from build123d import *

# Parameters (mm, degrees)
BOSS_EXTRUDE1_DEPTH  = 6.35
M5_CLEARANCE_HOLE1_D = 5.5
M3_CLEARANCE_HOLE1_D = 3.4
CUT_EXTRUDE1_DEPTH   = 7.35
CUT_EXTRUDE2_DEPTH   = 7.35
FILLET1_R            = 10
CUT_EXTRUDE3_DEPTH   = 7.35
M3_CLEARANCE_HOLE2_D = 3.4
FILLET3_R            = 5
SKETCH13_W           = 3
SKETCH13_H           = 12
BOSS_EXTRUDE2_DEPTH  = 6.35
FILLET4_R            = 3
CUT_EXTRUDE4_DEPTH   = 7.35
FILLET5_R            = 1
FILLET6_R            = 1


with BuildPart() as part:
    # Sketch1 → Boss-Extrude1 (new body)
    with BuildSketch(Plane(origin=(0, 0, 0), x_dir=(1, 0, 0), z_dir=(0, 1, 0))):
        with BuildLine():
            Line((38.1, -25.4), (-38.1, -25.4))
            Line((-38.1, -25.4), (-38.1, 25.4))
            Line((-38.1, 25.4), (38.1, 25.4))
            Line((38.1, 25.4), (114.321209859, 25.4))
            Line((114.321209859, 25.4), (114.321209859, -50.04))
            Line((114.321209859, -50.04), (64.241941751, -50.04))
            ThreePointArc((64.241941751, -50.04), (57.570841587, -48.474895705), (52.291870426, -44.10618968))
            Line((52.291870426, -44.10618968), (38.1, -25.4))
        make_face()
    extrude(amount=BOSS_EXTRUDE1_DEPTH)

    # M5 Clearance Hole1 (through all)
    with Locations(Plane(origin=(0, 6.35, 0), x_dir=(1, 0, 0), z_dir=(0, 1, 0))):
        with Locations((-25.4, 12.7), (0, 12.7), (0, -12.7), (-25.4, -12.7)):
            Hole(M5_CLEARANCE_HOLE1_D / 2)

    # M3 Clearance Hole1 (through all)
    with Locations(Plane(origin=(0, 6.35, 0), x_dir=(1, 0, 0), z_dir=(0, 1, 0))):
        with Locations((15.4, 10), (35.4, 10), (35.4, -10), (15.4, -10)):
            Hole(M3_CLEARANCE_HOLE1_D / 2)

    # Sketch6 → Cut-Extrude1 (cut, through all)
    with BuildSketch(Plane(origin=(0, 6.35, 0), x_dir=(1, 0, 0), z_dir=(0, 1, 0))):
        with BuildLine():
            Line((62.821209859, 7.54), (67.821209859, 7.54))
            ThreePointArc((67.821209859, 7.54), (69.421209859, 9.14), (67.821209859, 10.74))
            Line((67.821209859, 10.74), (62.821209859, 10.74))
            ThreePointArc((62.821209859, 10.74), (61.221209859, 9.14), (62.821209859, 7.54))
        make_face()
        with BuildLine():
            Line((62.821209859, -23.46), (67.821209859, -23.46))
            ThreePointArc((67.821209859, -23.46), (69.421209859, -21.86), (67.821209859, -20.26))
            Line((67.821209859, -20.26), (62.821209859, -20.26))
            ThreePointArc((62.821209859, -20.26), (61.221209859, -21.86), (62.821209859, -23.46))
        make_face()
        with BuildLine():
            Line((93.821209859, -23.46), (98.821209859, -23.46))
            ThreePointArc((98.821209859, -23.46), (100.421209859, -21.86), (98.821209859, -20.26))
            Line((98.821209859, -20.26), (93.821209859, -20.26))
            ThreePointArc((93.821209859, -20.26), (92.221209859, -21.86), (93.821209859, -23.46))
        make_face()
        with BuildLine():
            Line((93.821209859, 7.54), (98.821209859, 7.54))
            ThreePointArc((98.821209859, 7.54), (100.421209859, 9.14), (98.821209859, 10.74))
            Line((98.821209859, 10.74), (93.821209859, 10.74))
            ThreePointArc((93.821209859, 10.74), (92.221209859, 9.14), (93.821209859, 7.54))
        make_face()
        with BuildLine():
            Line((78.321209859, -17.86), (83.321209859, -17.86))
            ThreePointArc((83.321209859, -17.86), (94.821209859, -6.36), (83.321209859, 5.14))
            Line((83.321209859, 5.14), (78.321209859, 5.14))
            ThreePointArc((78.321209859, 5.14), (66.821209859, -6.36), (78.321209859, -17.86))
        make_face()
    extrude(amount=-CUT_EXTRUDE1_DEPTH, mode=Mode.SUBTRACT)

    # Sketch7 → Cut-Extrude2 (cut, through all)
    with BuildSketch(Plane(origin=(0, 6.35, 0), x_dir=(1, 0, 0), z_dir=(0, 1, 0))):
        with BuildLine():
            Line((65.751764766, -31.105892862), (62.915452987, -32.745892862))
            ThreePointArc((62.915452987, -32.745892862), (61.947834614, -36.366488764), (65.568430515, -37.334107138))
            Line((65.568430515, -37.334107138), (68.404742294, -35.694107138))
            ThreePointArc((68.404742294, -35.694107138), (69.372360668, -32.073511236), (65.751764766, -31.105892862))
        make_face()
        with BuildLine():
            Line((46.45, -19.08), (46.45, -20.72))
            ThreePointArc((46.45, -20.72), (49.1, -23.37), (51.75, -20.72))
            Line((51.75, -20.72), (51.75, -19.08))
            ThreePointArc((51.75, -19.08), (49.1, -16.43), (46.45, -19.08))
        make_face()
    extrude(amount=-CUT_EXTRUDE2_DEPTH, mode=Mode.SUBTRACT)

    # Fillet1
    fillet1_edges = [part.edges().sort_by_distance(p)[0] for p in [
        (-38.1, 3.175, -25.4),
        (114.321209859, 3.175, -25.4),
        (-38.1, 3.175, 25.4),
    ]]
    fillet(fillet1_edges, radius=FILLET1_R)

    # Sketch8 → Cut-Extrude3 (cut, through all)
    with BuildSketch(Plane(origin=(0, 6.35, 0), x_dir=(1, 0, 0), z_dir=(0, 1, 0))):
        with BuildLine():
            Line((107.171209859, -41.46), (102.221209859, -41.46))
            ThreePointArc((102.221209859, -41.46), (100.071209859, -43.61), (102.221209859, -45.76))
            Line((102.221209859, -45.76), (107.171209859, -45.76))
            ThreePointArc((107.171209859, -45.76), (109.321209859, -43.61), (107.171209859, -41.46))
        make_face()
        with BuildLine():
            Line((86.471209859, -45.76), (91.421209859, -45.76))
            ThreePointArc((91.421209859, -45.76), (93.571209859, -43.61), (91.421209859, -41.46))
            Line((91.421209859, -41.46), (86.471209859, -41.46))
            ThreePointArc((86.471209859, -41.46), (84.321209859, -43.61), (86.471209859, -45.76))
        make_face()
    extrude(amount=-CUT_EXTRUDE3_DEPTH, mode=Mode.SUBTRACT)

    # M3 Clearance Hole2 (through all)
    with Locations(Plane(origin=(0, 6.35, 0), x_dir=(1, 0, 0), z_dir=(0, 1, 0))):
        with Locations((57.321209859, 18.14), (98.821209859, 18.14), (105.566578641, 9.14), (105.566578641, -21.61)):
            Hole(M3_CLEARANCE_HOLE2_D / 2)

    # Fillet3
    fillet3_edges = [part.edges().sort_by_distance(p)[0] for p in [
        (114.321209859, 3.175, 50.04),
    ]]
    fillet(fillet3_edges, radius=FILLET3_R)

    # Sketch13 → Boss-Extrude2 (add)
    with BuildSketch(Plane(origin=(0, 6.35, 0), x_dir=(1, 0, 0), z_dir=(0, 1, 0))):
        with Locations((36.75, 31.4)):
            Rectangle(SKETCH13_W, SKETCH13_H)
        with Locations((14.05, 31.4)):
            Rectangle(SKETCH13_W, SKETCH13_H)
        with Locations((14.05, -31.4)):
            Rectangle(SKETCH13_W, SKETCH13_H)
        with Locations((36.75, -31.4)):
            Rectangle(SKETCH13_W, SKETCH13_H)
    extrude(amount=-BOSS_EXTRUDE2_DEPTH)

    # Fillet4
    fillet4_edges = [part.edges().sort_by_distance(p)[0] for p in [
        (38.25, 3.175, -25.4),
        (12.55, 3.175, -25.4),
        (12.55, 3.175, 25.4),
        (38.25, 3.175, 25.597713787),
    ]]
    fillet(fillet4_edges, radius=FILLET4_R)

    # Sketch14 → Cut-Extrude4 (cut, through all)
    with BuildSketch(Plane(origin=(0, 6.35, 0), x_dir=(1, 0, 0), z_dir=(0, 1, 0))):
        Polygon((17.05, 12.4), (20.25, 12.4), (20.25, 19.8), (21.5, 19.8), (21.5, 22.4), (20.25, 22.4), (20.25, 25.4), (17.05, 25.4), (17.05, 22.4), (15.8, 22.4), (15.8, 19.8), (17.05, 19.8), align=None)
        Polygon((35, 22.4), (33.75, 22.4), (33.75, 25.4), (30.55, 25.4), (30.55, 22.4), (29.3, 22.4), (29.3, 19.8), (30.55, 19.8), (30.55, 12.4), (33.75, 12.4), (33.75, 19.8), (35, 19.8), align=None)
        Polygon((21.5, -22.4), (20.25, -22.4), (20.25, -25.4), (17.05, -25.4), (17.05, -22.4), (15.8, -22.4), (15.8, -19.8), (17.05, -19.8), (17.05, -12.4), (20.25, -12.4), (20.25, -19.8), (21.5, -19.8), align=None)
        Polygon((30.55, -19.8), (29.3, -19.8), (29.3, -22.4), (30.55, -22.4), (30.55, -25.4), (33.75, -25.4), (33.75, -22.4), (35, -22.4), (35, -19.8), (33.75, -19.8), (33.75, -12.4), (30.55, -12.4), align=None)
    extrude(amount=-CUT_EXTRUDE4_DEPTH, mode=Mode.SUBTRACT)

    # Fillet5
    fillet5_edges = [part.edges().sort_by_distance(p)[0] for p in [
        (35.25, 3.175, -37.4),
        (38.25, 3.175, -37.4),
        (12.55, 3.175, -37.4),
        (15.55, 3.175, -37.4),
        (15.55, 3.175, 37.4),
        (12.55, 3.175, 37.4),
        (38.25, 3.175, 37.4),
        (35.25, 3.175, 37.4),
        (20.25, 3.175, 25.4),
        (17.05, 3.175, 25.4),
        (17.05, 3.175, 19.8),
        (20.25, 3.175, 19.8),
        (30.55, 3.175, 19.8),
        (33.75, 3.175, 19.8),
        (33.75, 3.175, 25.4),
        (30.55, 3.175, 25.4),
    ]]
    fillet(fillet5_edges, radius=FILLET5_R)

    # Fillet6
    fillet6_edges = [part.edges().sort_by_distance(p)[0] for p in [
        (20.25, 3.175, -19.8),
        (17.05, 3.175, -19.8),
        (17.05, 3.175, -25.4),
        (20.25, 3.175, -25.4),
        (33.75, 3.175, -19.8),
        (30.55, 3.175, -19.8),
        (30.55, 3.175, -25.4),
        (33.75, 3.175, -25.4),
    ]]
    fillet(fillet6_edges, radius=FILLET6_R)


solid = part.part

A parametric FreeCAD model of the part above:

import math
import FreeCAD as App
import Part
import Sketcher

V = App.Vector
Q = App.Units.Quantity


def edges_at(feature, points):
    """Names of the edges that pass closest to the given points."""
    edges = feature.Shape.Edges
    near = lambda p: min(range(len(edges)), key=lambda i: edges[i].distToShape(Part.Vertex(*p))[0])
    return sorted({f"Edge{near(p) + 1}" for p in points})

doc = App.newDocument("Part")
body = doc.addObject("PartDesign::Body", "Body")

# Sketch on XZ plane
sketch1 = body.newObject("Sketcher::SketchObject", "Sketch")
sketch1.AttachmentSupport = (doc.getObject("XZ_Plane"), [""])
sketch1.MapMode = "FlatFace"
sketch1.addGeometry([
    Part.LineSegment(V(-38.1, 25.4, 0), V(38.1, 25.4, 0)),  # 0
    Part.LineSegment(V(38.1, 25.4, 0), V(52.29187, 44.10619, 0)),  # 1
    Part.ArcOfCircle(Part.Circle(V(64.241942, 35.04, 0), V(0, 0, 1), 15), math.radians(90), math.radians(142.813412)),  # 2
    Part.LineSegment(V(64.241942, 50.04, 0), V(114.32121, 50.04, 0)),  # 3
    Part.LineSegment(V(114.32121, 50.04, 0), V(114.32121, -25.4, 0)),  # 4
    Part.LineSegment(V(114.32121, -25.4, 0), V(-38.1, -25.4, 0)),  # 5
    Part.LineSegment(V(-38.1, -25.4, 0), V(-38.1, 25.4, 0)),  # 6
], False)
sketch1.addConstraint([
    Sketcher.Constraint("Coincident", 0, 2, 1, 1),
    Sketcher.Constraint("Tangent", 1, 2, 2, 2),
    Sketcher.Constraint("Tangent", 2, 1, 3, 1),
    Sketcher.Constraint("Coincident", 3, 2, 4, 1),
    Sketcher.Constraint("Coincident", 4, 2, 5, 1),
    Sketcher.Constraint("Coincident", 5, 2, 6, 1),
    Sketcher.Constraint("Coincident", 6, 2, 0, 1),
    Sketcher.Constraint("Horizontal", 0),
    Sketcher.Constraint("Horizontal", 3),
    Sketcher.Constraint("Vertical", 4),
    Sketcher.Constraint("Horizontal", 5),
    Sketcher.Constraint("Vertical", 6),
    Sketcher.Constraint("Symmetric", 0, 2, 5, 2, -1, 1),
    Sketcher.Constraint("Radius", 2, Q("15 mm")),
    Sketcher.Constraint("DistanceX", 0, 1, 0, 2, Q("76.2 mm")),
    Sketcher.Constraint("DistanceY", 6, 1, 6, 2, Q("50.8 mm")),
    Sketcher.Constraint("DistanceY", 4, 2, 4, 1, Q("75.44 mm")),
    Sketcher.Constraint("DistanceX", 3, 1, 3, 2, Q("50.079268 mm")),
    Sketcher.Constraint("DistanceX", 5, 2, 5, 1, Q("152.42121 mm")),
])
pad1 = body.newObject("PartDesign::Pad", "Pad")
pad1.Profile = sketch1
pad1.Length = 6.35
pad1.Reversed = True

# Sketch on XZ plane
sketch2 = body.newObject("Sketcher::SketchObject", "Sketch001")
sketch2.AttachmentSupport = (doc.getObject("XZ_Plane"), [""])
sketch2.MapMode = "FlatFace"
sketch2.AttachmentOffset = App.Placement(V(0, 0, -6.35), App.Rotation())
sketch2.addGeometry([
    Part.Circle(V(-25.4, -12.7, 0), V(0, 0, 1), 2.75),
    Part.Circle(V(0, -12.7, 0), V(0, 0, 1), 2.75),
    Part.Circle(V(0, 12.7, 0), V(0, 0, 1), 2.75),
    Part.Circle(V(-25.4, 12.7, 0), V(0, 0, 1), 2.75),
], False)
sketch2.addConstraint([
    Sketcher.Constraint("Equal", 0, 1),
    Sketcher.Constraint("Equal", 1, 2),
    Sketcher.Constraint("Equal", 2, 3),
    Sketcher.Constraint("Symmetric", 1, 3, 2, 3, -1, 1),
    Sketcher.Constraint("Symmetric", 0, 3, 3, 3, -1),
    Sketcher.Constraint("PointOnObject", 1, 3, -2),
    Sketcher.Constraint("Horizontal", 0, 3, 1, 3),
    Sketcher.Constraint("Diameter", 0, Q("5.5 mm")),
    Sketcher.Constraint("DistanceX", 0, 3, -1, 1, Q("25.4 mm")),
    Sketcher.Constraint("DistanceY", 0, 3, -1, 1, Q("12.7 mm")),
])
doc.recompute()
hole = body.newObject("PartDesign::Hole", "Hole")
hole.Profile = sketch2
hole.ThreadType = "None"
hole.Diameter = 5.5
hole.DepthType = "ThroughAll"
hole.Reversed = True

# Sketch on XZ plane
sketch3 = body.newObject("Sketcher::SketchObject", "Sketch002")
sketch3.AttachmentSupport = (doc.getObject("XZ_Plane"), [""])
sketch3.MapMode = "FlatFace"
sketch3.AttachmentOffset = App.Placement(V(0, 0, -6.35), App.Rotation())
sketch3.addGeometry([
    Part.Circle(V(15.4, -10, 0), V(0, 0, 1), 1.7),
    Part.Circle(V(35.4, -10, 0), V(0, 0, 1), 1.7),
    Part.Circle(V(35.4, 10, 0), V(0, 0, 1), 1.7),
    Part.Circle(V(15.4, 10, 0), V(0, 0, 1), 1.7),
], False)
sketch3.addConstraint([
    Sketcher.Constraint("Equal", 0, 1),
    Sketcher.Constraint("Equal", 1, 2),
    Sketcher.Constraint("Equal", 2, 3),
    Sketcher.Constraint("Symmetric", 1, 3, 2, 3, -1),
    Sketcher.Constraint("Symmetric", 0, 3, 3, 3, -1),
    Sketcher.Constraint("Horizontal", 0, 3, 1, 3),
    Sketcher.Constraint("Diameter", 0, Q("3.4 mm")),
    Sketcher.Constraint("DistanceY", 0, 3, -1, 1, Q("10 mm")),
    Sketcher.Constraint("DistanceX", 0, 3, 1, 3, Q("20 mm")),
    Sketcher.Constraint("DistanceX", -1, 1, 0, 3, Q("15.4 mm")),
])
doc.recompute()
hole2 = body.newObject("PartDesign::Hole", "Hole001")
hole2.Profile = sketch3
hole2.ThreadType = "None"
hole2.Diameter = 3.4
hole2.DepthType = "ThroughAll"
hole2.Reversed = True

# Sketch on XZ plane
sketch4 = body.newObject("Sketcher::SketchObject", "Sketch003")
sketch4.AttachmentSupport = (doc.getObject("XZ_Plane"), [""])
sketch4.MapMode = "FlatFace"
sketch4.AttachmentOffset = App.Placement(V(0, 0, -6.35), App.Rotation())
sketch4.addGeometry([
    Part.LineSegment(V(62.82121, -7.54, 0), V(67.82121, -7.54, 0)),  # 0
    Part.ArcOfCircle(Part.Circle(V(67.82121, -9.14, 0), V(0, 0, 1), 1.6), math.radians(-90), math.radians(90)),  # 1
    Part.LineSegment(V(67.82121, -10.74, 0), V(62.82121, -10.74, 0)),  # 2
    Part.ArcOfCircle(Part.Circle(V(62.82121, -9.14, 0), V(0, 0, 1), 1.6), math.radians(90), math.radians(270)),  # 3
    Part.LineSegment(V(62.82121, 23.46, 0), V(67.82121, 23.46, 0)),  # 4
    Part.ArcOfCircle(Part.Circle(V(67.82121, 21.86, 0), V(0, 0, 1), 1.6), math.radians(-90), math.radians(90)),  # 5
    Part.LineSegment(V(67.82121, 20.26, 0), V(62.82121, 20.26, 0)),  # 6
    Part.ArcOfCircle(Part.Circle(V(62.82121, 21.86, 0), V(0, 0, 1), 1.6), math.radians(90), math.radians(270)),  # 7
    Part.LineSegment(V(93.82121, 23.46, 0), V(98.82121, 23.46, 0)),  # 8
    Part.ArcOfCircle(Part.Circle(V(98.82121, 21.86, 0), V(0, 0, 1), 1.6), math.radians(-90), math.radians(90)),  # 9
    Part.LineSegment(V(98.82121, 20.26, 0), V(93.82121, 20.26, 0)),  # 10
    Part.ArcOfCircle(Part.Circle(V(93.82121, 21.86, 0), V(0, 0, 1), 1.6), math.radians(90), math.radians(270)),  # 11
    Part.LineSegment(V(93.82121, -7.54, 0), V(98.82121, -7.54, 0)),  # 12
    Part.ArcOfCircle(Part.Circle(V(98.82121, -9.14, 0), V(0, 0, 1), 1.6), math.radians(-90), math.radians(90)),  # 13
    Part.LineSegment(V(98.82121, -10.74, 0), V(93.82121, -10.74, 0)),  # 14
    Part.ArcOfCircle(Part.Circle(V(93.82121, -9.14, 0), V(0, 0, 1), 1.6), math.radians(90), math.radians(270)),  # 15
    Part.LineSegment(V(78.32121, 17.86, 0), V(83.32121, 17.86, 0)),  # 16
    Part.ArcOfCircle(Part.Circle(V(83.32121, 6.36, 0), V(0, 0, 1), 11.5), math.radians(-90), math.radians(90)),  # 17
    Part.LineSegment(V(83.32121, -5.14, 0), V(78.32121, -5.14, 0)),  # 18
    Part.ArcOfCircle(Part.Circle(V(78.32121, 6.36, 0), V(0, 0, 1), 11.5), math.radians(90), math.radians(270)),  # 19
], False)
sketch4.addConstraint([
    Sketcher.Constraint("Tangent", 0, 2, 1, 2),
    Sketcher.Constraint("Tangent", 1, 1, 2, 1),
    Sketcher.Constraint("Tangent", 2, 2, 3, 2),
    Sketcher.Constraint("Tangent", 3, 1, 0, 1),
    Sketcher.Constraint("Tangent", 4, 2, 5, 2),
    Sketcher.Constraint("Tangent", 5, 1, 6, 1),
    Sketcher.Constraint("Tangent", 6, 2, 7, 2),
    Sketcher.Constraint("Tangent", 7, 1, 4, 1),
    Sketcher.Constraint("Tangent", 8, 2, 9, 2),
    Sketcher.Constraint("Tangent", 9, 1, 10, 1),
    Sketcher.Constraint("Tangent", 10, 2, 11, 2),
    Sketcher.Constraint("Tangent", 11, 1, 8, 1),
    Sketcher.Constraint("Tangent", 12, 2, 13, 2),
    Sketcher.Constraint("Tangent", 13, 1, 14, 1),
    Sketcher.Constraint("Tangent", 14, 2, 15, 2),
    Sketcher.Constraint("Tangent", 15, 1, 12, 1),
    Sketcher.Constraint("Tangent", 16, 2, 17, 2),
    Sketcher.Constraint("Tangent", 17, 1, 18, 1),
    Sketcher.Constraint("Tangent", 18, 2, 19, 2),
    Sketcher.Constraint("Tangent", 19, 1, 16, 1),
    Sketcher.Constraint("Horizontal", 0),
    Sketcher.Constraint("Horizontal", 2),
    Sketcher.Constraint("Horizontal", 4),
    Sketcher.Constraint("Horizontal", 6),
    Sketcher.Constraint("Horizontal", 8),
    Sketcher.Constraint("Horizontal", 10),
    Sketcher.Constraint("Horizontal", 12),
    Sketcher.Constraint("Horizontal", 14),
    Sketcher.Constraint("Horizontal", 16),
    Sketcher.Constraint("Horizontal", 18),
    Sketcher.Constraint("Equal", 3, 5),
    Sketcher.Constraint("Equal", 7, 9),
    Sketcher.Constraint("Equal", 11, 13),
    Sketcher.Constraint("Horizontal", 7, 3, 9, 3),
    Sketcher.Constraint("Horizontal", 3, 3, 13, 3),
    Sketcher.Constraint("Vertical", 1, 3, 5, 3),
    Sketcher.Constraint("Vertical", 3, 3, 7, 3),
    Sketcher.Constraint("Vertical", 9, 3, 13, 3),
    Sketcher.Constraint("Vertical", 11, 3, 15, 3),
    Sketcher.Constraint("Equal", 6, 8),
    Sketcher.Constraint("Equal", 14, 16),
    Sketcher.Constraint("Radius", 1, Q("1.6 mm")),
    Sketcher.Constraint("Radius", 17, Q("11.5 mm")),
    Sketcher.Constraint("DistanceX", 0, 1, 0, 2, Q("5 mm")),
    Sketcher.Constraint("DistanceY", 1, 3, 5, 3, Q("31 mm")),
    Sketcher.Constraint("DistanceX", 5, 3, 9, 3, Q("31 mm")),
    Sketcher.Constraint("DistanceY", 16, 2, 11, 3, Q("4 mm")),
    Sketcher.Constraint("DistanceX", 17, 3, 11, 3, Q("10.5 mm")),
    Sketcher.Constraint("DistanceY", 1, 3, -1, 1, Q("9.14 mm")),
    Sketcher.Constraint("DistanceX", -1, 1, 1, 3, Q("67.82121 mm")),
])
pocket1 = body.newObject("PartDesign::Pocket", "Pocket")
pocket1.Profile = sketch4
pocket1.Type = "ThroughAll"
pocket1.Reversed = True

# Sketch on XZ plane
sketch5 = body.newObject("Sketcher::SketchObject", "Sketch004")
sketch5.AttachmentSupport = (doc.getObject("XZ_Plane"), [""])
sketch5.MapMode = "FlatFace"
sketch5.AttachmentOffset = App.Placement(V(0, 0, -6.35), App.Rotation())
sketch5.addGeometry([
    Part.LineSegment(V(65.751765, 31.105893, 0), V(62.915453, 32.745893, 0)),  # 0
    Part.ArcOfCircle(Part.Circle(V(64.241942, 35.04, 0), V(0, 0, 1), 2.65), math.radians(59.962825), math.radians(239.962825)),  # 1
    Part.LineSegment(V(65.568431, 37.334107, 0), V(68.404742, 35.694107, 0)),  # 2
    Part.ArcOfCircle(Part.Circle(V(67.078254, 33.4, 0), V(0, 0, 1), 2.65), math.radians(-120.037175), math.radians(59.962825)),  # 3
    Part.LineSegment(V(46.45, 19.08, 0), V(46.45, 20.72, 0)),  # 4
    Part.ArcOfCircle(Part.Circle(V(49.1, 20.72, 0), V(0, 0, 1), 2.65), math.radians(0), math.radians(180)),  # 5
    Part.LineSegment(V(51.75, 20.72, 0), V(51.75, 19.08, 0)),  # 6
    Part.ArcOfCircle(Part.Circle(V(49.1, 19.08, 0), V(0, 0, 1), 2.65), math.radians(180), math.radians(360)),  # 7
], False)
sketch5.addConstraint([
    Sketcher.Constraint("Tangent", 0, 2, 1, 2),
    Sketcher.Constraint("Tangent", 1, 1, 2, 1),
    Sketcher.Constraint("Tangent", 2, 2, 3, 2),
    Sketcher.Constraint("Tangent", 3, 1, 0, 1),
    Sketcher.Constraint("Tangent", 4, 2, 5, 2),
    Sketcher.Constraint("Tangent", 5, 1, 6, 1),
    Sketcher.Constraint("Tangent", 6, 2, 7, 2),
    Sketcher.Constraint("Tangent", 7, 1, 4, 1),
    Sketcher.Constraint("Vertical", 4),
    Sketcher.Constraint("Vertical", 6),
    Sketcher.Constraint("Equal", 1, 3),
    Sketcher.Constraint("Equal", 3, 5),
    Sketcher.Constraint("Radius", 1, Q("2.65 mm")),
    Sketcher.Constraint("DistanceY", 4, 1, 4, 2, Q("1.64 mm")),
    Sketcher.Constraint("DistanceY", -1, 1, 3, 3, Q("33.4 mm")),
    Sketcher.Constraint("DistanceX", -1, 1, 5, 3, Q("49.1 mm")),
    Sketcher.Constraint("DistanceY", -1, 1, 1, 3, Q("35.04 mm")),
    Sketcher.Constraint("DistanceY", -1, 1, 5, 3, Q("20.72 mm")),
    Sketcher.Constraint("DistanceX", 0, 2, 3, 3, Q("4.162801 mm")),
    Sketcher.Constraint("DistanceX", -1, 1, 1, 3, Q("64.241942 mm")),
])
pocket2 = body.newObject("PartDesign::Pocket", "Pocket001")
pocket2.Profile = sketch5
pocket2.Type = "ThroughAll"
pocket2.Reversed = True
doc.recompute()

fillet = body.newObject("PartDesign::Fillet", "Fillet")
fillet.Base = (pocket2, edges_at(pocket2, [(-38.1, 3.175, -25.4), (114.321, 3.175, -25.4), (-38.1, 3.175, 25.4)]))
fillet.Radius = 10

# Sketch on XZ plane
sketch6 = body.newObject("Sketcher::SketchObject", "Sketch005")
sketch6.AttachmentSupport = (doc.getObject("XZ_Plane"), [""])
sketch6.MapMode = "FlatFace"
sketch6.AttachmentOffset = App.Placement(V(0, 0, -6.35), App.Rotation())
sketch6.addGeometry([
    Part.LineSegment(V(107.17121, 41.46, 0), V(102.22121, 41.46, 0)),  # 0
    Part.ArcOfCircle(Part.Circle(V(102.22121, 43.61, 0), V(0, 0, 1), 2.15), math.radians(90), math.radians(270)),  # 1
    Part.LineSegment(V(102.22121, 45.76, 0), V(107.17121, 45.76, 0)),  # 2
    Part.ArcOfCircle(Part.Circle(V(107.17121, 43.61, 0), V(0, 0, 1), 2.15), math.radians(-90), math.radians(90)),  # 3
    Part.LineSegment(V(86.47121, 45.76, 0), V(91.42121, 45.76, 0)),  # 4
    Part.ArcOfCircle(Part.Circle(V(91.42121, 43.61, 0), V(0, 0, 1), 2.15), math.radians(-90), math.radians(90)),  # 5
    Part.LineSegment(V(91.42121, 41.46, 0), V(86.47121, 41.46, 0)),  # 6
    Part.ArcOfCircle(Part.Circle(V(86.47121, 43.61, 0), V(0, 0, 1), 2.15), math.radians(90), math.radians(270)),  # 7
], False)
sketch6.addConstraint([
    Sketcher.Constraint("Tangent", 0, 2, 1, 2),
    Sketcher.Constraint("Tangent", 1, 1, 2, 1),
    Sketcher.Constraint("Tangent", 2, 2, 3, 2),
    Sketcher.Constraint("Tangent", 3, 1, 0, 1),
    Sketcher.Constraint("Tangent", 4, 2, 5, 2),
    Sketcher.Constraint("Tangent", 5, 1, 6, 1),
    Sketcher.Constraint("Tangent", 6, 2, 7, 2),
    Sketcher.Constraint("Tangent", 7, 1, 4, 1),
    Sketcher.Constraint("Horizontal", 0),
    Sketcher.Constraint("Horizontal", 2),
    Sketcher.Constraint("Horizontal", 4),
    Sketcher.Constraint("Horizontal", 6),
    Sketcher.Constraint("Equal", 3, 5),
    Sketcher.Constraint("Horizontal", 3, 3, 5, 3),
    Sketcher.Constraint("Equal", 2, 4),
    Sketcher.Constraint("Radius", 1, Q("2.15 mm")),
    Sketcher.Constraint("DistanceX", 0, 2, 0, 1, Q("4.95 mm")),
    Sketcher.Constraint("DistanceX", 5, 3, 1, 3, Q("10.8 mm")),
    Sketcher.Constraint("DistanceY", -1, 1, 1, 3, Q("43.61 mm")),
    Sketcher.Constraint("DistanceX", -1, 1, 1, 3, Q("102.22121 mm")),
])
pocket3 = body.newObject("PartDesign::Pocket", "Pocket002")
pocket3.Profile = sketch6
pocket3.Type = "ThroughAll"
pocket3.Reversed = True

# Sketch on XZ plane
sketch7 = body.newObject("Sketcher::SketchObject", "Sketch006")
sketch7.AttachmentSupport = (doc.getObject("XZ_Plane"), [""])
sketch7.MapMode = "FlatFace"
sketch7.AttachmentOffset = App.Placement(V(0, 0, -6.35), App.Rotation())
sketch7.addGeometry([
    Part.Circle(V(57.32121, -18.14, 0), V(0, 0, 1), 1.7),
    Part.Circle(V(98.82121, -18.14, 0), V(0, 0, 1), 1.7),
    Part.Circle(V(105.566579, -9.14, 0), V(0, 0, 1), 1.7),
    Part.Circle(V(105.566579, 21.61, 0), V(0, 0, 1), 1.7),
], False)
sketch7.addConstraint([
    Sketcher.Constraint("Equal", 0, 1),
    Sketcher.Constraint("Equal", 1, 2),
    Sketcher.Constraint("Equal", 2, 3),
    Sketcher.Constraint("Horizontal", 0, 3, 1, 3),
    Sketcher.Constraint("Vertical", 2, 3, 3, 3),
    Sketcher.Constraint("Diameter", 0, Q("3.4 mm")),
    Sketcher.Constraint("DistanceY", 1, 3, 2, 3, Q("9 mm")),
    Sketcher.Constraint("DistanceX", 0, 3, 1, 3, Q("41.5 mm")),
    Sketcher.Constraint("DistanceY", 0, 3, -1, 1, Q("18.14 mm")),
    Sketcher.Constraint("DistanceY", -1, 1, 3, 3, Q("21.61 mm")),
    Sketcher.Constraint("DistanceX", -1, 1, 0, 3, Q("57.32121 mm")),
    Sketcher.Constraint("DistanceX", -1, 1, 2, 3, Q("105.566579 mm")),
])
doc.recompute()
hole3 = body.newObject("PartDesign::Hole", "Hole002")
hole3.Profile = sketch7
hole3.ThreadType = "None"
hole3.Diameter = 3.4
hole3.DepthType = "ThroughAll"
hole3.Reversed = True
doc.recompute()

fillet2 = body.newObject("PartDesign::Fillet", "Fillet001")
fillet2.Base = (hole3, edges_at(hole3, [(114.321, 3.175, 50.04)]))
fillet2.Radius = 5

# Sketch on XZ plane
sketch8 = body.newObject("Sketcher::SketchObject", "Sketch007")
sketch8.AttachmentSupport = (doc.getObject("XZ_Plane"), [""])
sketch8.MapMode = "FlatFace"
sketch8.AttachmentOffset = App.Placement(V(0, 0, -6.35), App.Rotation())
sketch8.addGeometry([
    Part.LineSegment(V(35.25, -37.4, 0), V(35.25, -25.4, 0)),  # 0
    Part.LineSegment(V(35.25, -25.4, 0), V(38.25, -25.4, 0)),  # 1
    Part.LineSegment(V(38.25, -25.4, 0), V(38.25, -37.4, 0)),  # 2
    Part.LineSegment(V(38.25, -37.4, 0), V(35.25, -37.4, 0)),  # 3
    Part.LineSegment(V(12.55, -37.4, 0), V(12.55, -25.4, 0)),  # 4
    Part.LineSegment(V(12.55, -25.4, 0), V(15.55, -25.4, 0)),  # 5
    Part.LineSegment(V(15.55, -25.4, 0), V(15.55, -37.4, 0)),  # 6
    Part.LineSegment(V(15.55, -37.4, 0), V(12.55, -37.4, 0)),  # 7
    Part.LineSegment(V(12.55, 25.4, 0), V(12.55, 37.4, 0)),  # 8
    Part.LineSegment(V(12.55, 37.4, 0), V(15.55, 37.4, 0)),  # 9
    Part.LineSegment(V(15.55, 37.4, 0), V(15.55, 25.4, 0)),  # 10
    Part.LineSegment(V(15.55, 25.4, 0), V(12.55, 25.4, 0)),  # 11
    Part.LineSegment(V(35.25, 25.4, 0), V(35.25, 37.4, 0)),  # 12
    Part.LineSegment(V(35.25, 37.4, 0), V(38.25, 37.4, 0)),  # 13
    Part.LineSegment(V(38.25, 37.4, 0), V(38.25, 25.4, 0)),  # 14
    Part.LineSegment(V(38.25, 25.4, 0), V(35.25, 25.4, 0)),  # 15
], False)
sketch8.addConstraint([
    Sketcher.Constraint("Coincident", 0, 2, 1, 1),
    Sketcher.Constraint("Coincident", 1, 2, 2, 1),
    Sketcher.Constraint("Coincident", 2, 2, 3, 1),
    Sketcher.Constraint("Coincident", 3, 2, 0, 1),
    Sketcher.Constraint("Coincident", 4, 2, 5, 1),
    Sketcher.Constraint("Coincident", 5, 2, 6, 1),
    Sketcher.Constraint("Coincident", 6, 2, 7, 1),
    Sketcher.Constraint("Coincident", 7, 2, 4, 1),
    Sketcher.Constraint("Coincident", 8, 2, 9, 1),
    Sketcher.Constraint("Coincident", 9, 2, 10, 1),
    Sketcher.Constraint("Coincident", 10, 2, 11, 1),
    Sketcher.Constraint("Coincident", 11, 2, 8, 1),
    Sketcher.Constraint("Coincident", 12, 2, 13, 1),
    Sketcher.Constraint("Coincident", 13, 2, 14, 1),
    Sketcher.Constraint("Coincident", 14, 2, 15, 1),
    Sketcher.Constraint("Coincident", 15, 2, 12, 1),
    Sketcher.Constraint("Vertical", 0),
    Sketcher.Constraint("Horizontal", 1),
    Sketcher.Constraint("Vertical", 2),
    Sketcher.Constraint("Horizontal", 3),
    Sketcher.Constraint("Vertical", 4),
    Sketcher.Constraint("Horizontal", 5),
    Sketcher.Constraint("Vertical", 6),
    Sketcher.Constraint("Horizontal", 7),
    Sketcher.Constraint("Vertical", 8),
    Sketcher.Constraint("Horizontal", 9),
    Sketcher.Constraint("Vertical", 10),
    Sketcher.Constraint("Horizontal", 11),
    Sketcher.Constraint("Vertical", 12),
    Sketcher.Constraint("Horizontal", 13),
    Sketcher.Constraint("Vertical", 14),
    Sketcher.Constraint("Horizontal", 15),
    Sketcher.Constraint("Symmetric", 7, 2, 8, 2, -1),
    Sketcher.Constraint("Symmetric", 5, 2, 10, 2, -1),
    Sketcher.Constraint("Symmetric", 3, 2, 12, 2, -1),
    Sketcher.Constraint("Symmetric", 1, 2, 14, 2, -1),
    Sketcher.Constraint("Horizontal", 1, 2, 4, 2),
    Sketcher.Constraint("Horizontal", 3, 2, 6, 2),
    Sketcher.Constraint("Equal", 3, 5),
    Sketcher.Constraint("DistanceX", 1, 1, 1, 2, Q("3 mm")),
    Sketcher.Constraint("DistanceY", 0, 1, 0, 2, Q("12 mm")),
    Sketcher.Constraint("DistanceY", 0, 2, -1, 1, Q("25.4 mm")),
    Sketcher.Constraint("DistanceX", 4, 2, 0, 2, Q("22.7 mm")),
    Sketcher.Constraint("DistanceX", -1, 1, 0, 2, Q("35.25 mm")),
])
pad2 = body.newObject("PartDesign::Pad", "Pad001")
pad2.Profile = sketch8
pad2.Length = 6.35
doc.recompute()

fillet3 = body.newObject("PartDesign::Fillet", "Fillet002")
fillet3.Base = (pad2, edges_at(pad2, [
    (38.25, 3.175, -25.4),
    (12.55, 3.175, -25.4),
    (12.55, 3.175, 25.4),
    (38.25, 3.175, 25.598),
]))
fillet3.Radius = 3

# Sketch on XZ plane
sketch9 = body.newObject("Sketcher::SketchObject", "Sketch008")
sketch9.AttachmentSupport = (doc.getObject("XZ_Plane"), [""])
sketch9.MapMode = "FlatFace"
sketch9.AttachmentOffset = App.Placement(V(0, 0, -6.35), App.Rotation())
sketch9.addGeometry([
    Part.LineSegment(V(17.05, -12.4, 0), V(20.25, -12.4, 0)),  # 0
    Part.LineSegment(V(20.25, -12.4, 0), V(20.25, -19.8, 0)),  # 1
    Part.LineSegment(V(20.25, -19.8, 0), V(21.5, -19.8, 0)),  # 2
    Part.LineSegment(V(21.5, -19.8, 0), V(21.5, -22.4, 0)),  # 3
    Part.LineSegment(V(21.5, -22.4, 0), V(20.25, -22.4, 0)),  # 4
    Part.LineSegment(V(20.25, -22.4, 0), V(20.25, -25.4, 0)),  # 5
    Part.LineSegment(V(20.25, -25.4, 0), V(17.05, -25.4, 0)),  # 6
    Part.LineSegment(V(17.05, -25.4, 0), V(17.05, -22.4, 0)),  # 7
    Part.LineSegment(V(17.05, -22.4, 0), V(15.8, -22.4, 0)),  # 8
    Part.LineSegment(V(15.8, -22.4, 0), V(15.8, -19.8, 0)),  # 9
    Part.LineSegment(V(15.8, -19.8, 0), V(17.05, -19.8, 0)),  # 10
    Part.LineSegment(V(17.05, -19.8, 0), V(17.05, -12.4, 0)),  # 11
    Part.LineSegment(V(35, -22.4, 0), V(33.75, -22.4, 0)),  # 12
    Part.LineSegment(V(33.75, -22.4, 0), V(33.75, -25.4, 0)),  # 13
    Part.LineSegment(V(33.75, -25.4, 0), V(30.55, -25.4, 0)),  # 14
    Part.LineSegment(V(30.55, -25.4, 0), V(30.55, -22.4, 0)),  # 15
    Part.LineSegment(V(30.55, -22.4, 0), V(29.3, -22.4, 0)),  # 16
    Part.LineSegment(V(29.3, -22.4, 0), V(29.3, -19.8, 0)),  # 17
    Part.LineSegment(V(29.3, -19.8, 0), V(30.55, -19.8, 0)),  # 18
    Part.LineSegment(V(30.55, -19.8, 0), V(30.55, -12.4, 0)),  # 19
    Part.LineSegment(V(30.55, -12.4, 0), V(33.75, -12.4, 0)),  # 20
    Part.LineSegment(V(33.75, -12.4, 0), V(33.75, -19.8, 0)),  # 21
    Part.LineSegment(V(33.75, -19.8, 0), V(35, -19.8, 0)),  # 22
    Part.LineSegment(V(35, -19.8, 0), V(35, -22.4, 0)),  # 23
    Part.LineSegment(V(20.25, 22.4, 0), V(21.5, 22.4, 0)),  # 24
    Part.LineSegment(V(21.5, 22.4, 0), V(21.5, 19.8, 0)),  # 25
    Part.LineSegment(V(21.5, 19.8, 0), V(20.25, 19.8, 0)),  # 26
    Part.LineSegment(V(20.25, 19.8, 0), V(20.25, 12.4, 0)),  # 27
    Part.LineSegment(V(20.25, 12.4, 0), V(17.05, 12.4, 0)),  # 28
    Part.LineSegment(V(17.05, 12.4, 0), V(17.05, 19.8, 0)),  # 29
    Part.LineSegment(V(17.05, 19.8, 0), V(15.8, 19.8, 0)),  # 30
    Part.LineSegment(V(15.8, 19.8, 0), V(15.8, 22.4, 0)),  # 31
    Part.LineSegment(V(15.8, 22.4, 0), V(17.05, 22.4, 0)),  # 32
    Part.LineSegment(V(17.05, 22.4, 0), V(17.05, 25.4, 0)),  # 33
    Part.LineSegment(V(17.05, 25.4, 0), V(20.25, 25.4, 0)),  # 34
    Part.LineSegment(V(20.25, 25.4, 0), V(20.25, 22.4, 0)),  # 35
    Part.LineSegment(V(30.55, 19.8, 0), V(29.3, 19.8, 0)),  # 36
    Part.LineSegment(V(29.3, 19.8, 0), V(29.3, 22.4, 0)),  # 37
    Part.LineSegment(V(29.3, 22.4, 0), V(30.55, 22.4, 0)),  # 38
    Part.LineSegment(V(30.55, 22.4, 0), V(30.55, 25.4, 0)),  # 39
    Part.LineSegment(V(30.55, 25.4, 0), V(33.75, 25.4, 0)),  # 40
    Part.LineSegment(V(33.75, 25.4, 0), V(33.75, 22.4, 0)),  # 41
    Part.LineSegment(V(33.75, 22.4, 0), V(35, 22.4, 0)),  # 42
    Part.LineSegment(V(35, 22.4, 0), V(35, 19.8, 0)),  # 43
    Part.LineSegment(V(35, 19.8, 0), V(33.75, 19.8, 0)),  # 44
    Part.LineSegment(V(33.75, 19.8, 0), V(33.75, 12.4, 0)),  # 45
    Part.LineSegment(V(33.75, 12.4, 0), V(30.55, 12.4, 0)),  # 46
    Part.LineSegment(V(30.55, 12.4, 0), V(30.55, 19.8, 0)),  # 47
], False)
sketch9.addConstraint([
    Sketcher.Constraint("Coincident", 0, 2, 1, 1),
    Sketcher.Constraint("Coincident", 1, 2, 2, 1),
    Sketcher.Constraint("Coincident", 2, 2, 3, 1),
    Sketcher.Constraint("Coincident", 3, 2, 4, 1),
    Sketcher.Constraint("Coincident", 4, 2, 5, 1),
    Sketcher.Constraint("Coincident", 5, 2, 6, 1),
    Sketcher.Constraint("Coincident", 6, 2, 7, 1),
    Sketcher.Constraint("Coincident", 7, 2, 8, 1),
    Sketcher.Constraint("Coincident", 8, 2, 9, 1),
    Sketcher.Constraint("Coincident", 9, 2, 10, 1),
    Sketcher.Constraint("Coincident", 10, 2, 11, 1),
    Sketcher.Constraint("Coincident", 11, 2, 0, 1),
    Sketcher.Constraint("Coincident", 12, 2, 13, 1),
    Sketcher.Constraint("Coincident", 13, 2, 14, 1),
    Sketcher.Constraint("Coincident", 14, 2, 15, 1),
    Sketcher.Constraint("Coincident", 15, 2, 16, 1),
    Sketcher.Constraint("Coincident", 16, 2, 17, 1),
    Sketcher.Constraint("Coincident", 17, 2, 18, 1),
    Sketcher.Constraint("Coincident", 18, 2, 19, 1),
    Sketcher.Constraint("Coincident", 19, 2, 20, 1),
    Sketcher.Constraint("Coincident", 20, 2, 21, 1),
    Sketcher.Constraint("Coincident", 21, 2, 22, 1),
    Sketcher.Constraint("Coincident", 22, 2, 23, 1),
    Sketcher.Constraint("Coincident", 23, 2, 12, 1),
    Sketcher.Constraint("Coincident", 24, 2, 25, 1),
    Sketcher.Constraint("Coincident", 25, 2, 26, 1),
    Sketcher.Constraint("Coincident", 26, 2, 27, 1),
    Sketcher.Constraint("Coincident", 27, 2, 28, 1),
    Sketcher.Constraint("Coincident", 28, 2, 29, 1),
    Sketcher.Constraint("Coincident", 29, 2, 30, 1),
    Sketcher.Constraint("Coincident", 30, 2, 31, 1),
    Sketcher.Constraint("Coincident", 31, 2, 32, 1),
    Sketcher.Constraint("Coincident", 32, 2, 33, 1),
    Sketcher.Constraint("Coincident", 33, 2, 34, 1),
    Sketcher.Constraint("Coincident", 34, 2, 35, 1),
    Sketcher.Constraint("Coincident", 35, 2, 24, 1),
    Sketcher.Constraint("Coincident", 36, 2, 37, 1),
    Sketcher.Constraint("Coincident", 37, 2, 38, 1),
    Sketcher.Constraint("Coincident", 38, 2, 39, 1),
    Sketcher.Constraint("Coincident", 39, 2, 40, 1),
    Sketcher.Constraint("Coincident", 40, 2, 41, 1),
    Sketcher.Constraint("Coincident", 41, 2, 42, 1),
    Sketcher.Constraint("Coincident", 42, 2, 43, 1),
    Sketcher.Constraint("Coincident", 43, 2, 44, 1),
    Sketcher.Constraint("Coincident", 44, 2, 45, 1),
    Sketcher.Constraint("Coincident", 45, 2, 46, 1),
    Sketcher.Constraint("Coincident", 46, 2, 47, 1),
    Sketcher.Constraint("Coincident", 47, 2, 36, 1),
    Sketcher.Constraint("Horizontal", 0),
    Sketcher.Constraint("Vertical", 1),
    Sketcher.Constraint("Horizontal", 2),
    Sketcher.Constraint("Vertical", 3),
    Sketcher.Constraint("Horizontal", 4),
    Sketcher.Constraint("Vertical", 5),
    Sketcher.Constraint("Horizontal", 6),
    Sketcher.Constraint("Vertical", 7),
    Sketcher.Constraint("Horizontal", 8),
    Sketcher.Constraint("Vertical", 9),
    Sketcher.Constraint("Horizontal", 10),
    Sketcher.Constraint("Vertical", 11),
    Sketcher.Constraint("Horizontal", 12),
    Sketcher.Constraint("Vertical", 13),
    Sketcher.Constraint("Horizontal", 14),
    Sketcher.Constraint("Vertical", 15),
    Sketcher.Constraint("Horizontal", 16),
    Sketcher.Constraint("Vertical", 17),
    Sketcher.Constraint("Horizontal", 18),
    Sketcher.Constraint("Vertical", 19),
    Sketcher.Constraint("Horizontal", 20),
    Sketcher.Constraint("Vertical", 21),
    Sketcher.Constraint("Horizontal", 22),
    Sketcher.Constraint("Vertical", 23),
    Sketcher.Constraint("Horizontal", 24),
    Sketcher.Constraint("Vertical", 25),
    Sketcher.Constraint("Horizontal", 26),
    Sketcher.Constraint("Vertical", 27),
    Sketcher.Constraint("Horizontal", 28),
    Sketcher.Constraint("Vertical", 29),
    Sketcher.Constraint("Horizontal", 30),
    Sketcher.Constraint("Vertical", 31),
    Sketcher.Constraint("Horizontal", 32),
    Sketcher.Constraint("Vertical", 33),
    Sketcher.Constraint("Horizontal", 34),
    Sketcher.Constraint("Vertical", 35),
    Sketcher.Constraint("Horizontal", 36),
    Sketcher.Constraint("Vertical", 37),
    Sketcher.Constraint("Horizontal", 38),
    Sketcher.Constraint("Vertical", 39),
    Sketcher.Constraint("Horizontal", 40),
    Sketcher.Constraint("Vertical", 41),
    Sketcher.Constraint("Horizontal", 42),
    Sketcher.Constraint("Vertical", 43),
    Sketcher.Constraint("Horizontal", 44),
    Sketcher.Constraint("Vertical", 45),
    Sketcher.Constraint("Horizontal", 46),
    Sketcher.Constraint("Vertical", 47),
    Sketcher.Constraint("Symmetric", 3, 2, 24, 2, -1),
    Sketcher.Constraint("Symmetric", 1, 2, 26, 2, -1),
    Sketcher.Constraint("Symmetric", 11, 2, 28, 2, -1),
    Sketcher.Constraint("Symmetric", 9, 2, 30, 2, -1),
    Sketcher.Constraint("Symmetric", 7, 2, 32, 2, -1),
    Sketcher.Constraint("Symmetric", 5, 2, 34, 2, -1),
    Sketcher.Constraint("Symmetric", 17, 2, 36, 2, -1),
    Sketcher.Constraint("Symmetric", 15, 2, 38, 2, -1),
    Sketcher.Constraint("Symmetric", 13, 2, 40, 2, -1),
    Sketcher.Constraint("Symmetric", 23, 2, 42, 2, -1),
    Sketcher.Constraint("Symmetric", 21, 2, 44, 2, -1),
    Sketcher.Constraint("Symmetric", 19, 2, 46, 2, -1),
    Sketcher.Constraint("Horizontal", 4, 2, 7, 2),
    Sketcher.Constraint("Horizontal", 2, 2, 9, 2),
    Sketcher.Constraint("Horizontal", 8, 2, 12, 2),
    Sketcher.Constraint("Horizontal", 6, 2, 13, 2),
    Sketcher.Constraint("Horizontal", 12, 2, 15, 2),
    Sketcher.Constraint("Horizontal", 10, 2, 17, 2),
    Sketcher.Constraint("Horizontal", 11, 2, 19, 2),
    Sketcher.Constraint("Horizontal", 18, 2, 21, 2),
    Sketcher.Constraint("Vertical", 1, 2, 4, 2),
    Sketcher.Constraint("Vertical", 7, 2, 10, 2),
    Sketcher.Constraint("Vertical", 15, 2, 18, 2),
    Sketcher.Constraint("Vertical", 13, 2, 20, 2),
    Sketcher.Constraint("Equal", 4, 8),
    Sketcher.Constraint("Equal", 10, 12),
    Sketcher.Constraint("Equal", 6, 14),
    Sketcher.Constraint("Equal", 12, 16),
    Sketcher.Constraint("DistanceY", 5, 2, 5, 1, Q("3 mm")),
    Sketcher.Constraint("DistanceX", 0, 1, 0, 2, Q("3.2 mm")),
    Sketcher.Constraint("DistanceY", 1, 2, 1, 1, Q("7.4 mm")),
    Sketcher.Constraint("DistanceY", 3, 2, 3, 1, Q("2.6 mm")),
    Sketcher.Constraint("DistanceX", -1, 1, 22, 2, Q("35 mm")),
    Sketcher.Constraint("DistanceX", 2, 1, 2, 2, Q("1.25 mm")),
    Sketcher.Constraint("DistanceY", 0, 2, -1, 1, Q("12.4 mm")),
    Sketcher.Constraint("DistanceX", -1, 1, 2, 2, Q("21.5 mm")),
])
pocket4 = body.newObject("PartDesign::Pocket", "Pocket003")
pocket4.Profile = sketch9
pocket4.Type = "ThroughAll"
pocket4.Reversed = True
doc.recompute()

fillet4 = body.newObject("PartDesign::Fillet", "Fillet003")
fillet4.Base = (pocket4, edges_at(pocket4, [
    (35.25, 3.175, -37.4),
    (38.25, 3.175, -37.4),
    (12.55, 3.175, -37.4),
    (15.55, 3.175, -37.4),
    (15.55, 3.175, 37.4),
    (12.55, 3.175, 37.4),
    (38.25, 3.175, 37.4),
    (35.25, 3.175, 37.4),
    (20.25, 3.175, 25.4),
    (17.05, 3.175, 25.4),
    (17.05, 3.175, 19.8),
    (20.25, 3.175, 19.8),
    (30.55, 3.175, 19.8),
    (33.75, 3.175, 19.8),
    (33.75, 3.175, 25.4),
    (30.55, 3.175, 25.4),
]))
fillet4.Radius = 1
doc.recompute()

fillet5 = body.newObject("PartDesign::Fillet", "Fillet004")
fillet5.Base = (fillet4, edges_at(fillet4, [
    (20.25, 3.175, -19.8),
    (17.05, 3.175, -19.8),
    (17.05, 3.175, -25.4),
    (20.25, 3.175, -25.4),
    (33.75, 3.175, -19.8),
    (30.55, 3.175, -19.8),
    (30.55, 3.175, -25.4),
    (33.75, 3.175, -25.4),
]))
fillet5.Radius = 1

doc.recompute()
